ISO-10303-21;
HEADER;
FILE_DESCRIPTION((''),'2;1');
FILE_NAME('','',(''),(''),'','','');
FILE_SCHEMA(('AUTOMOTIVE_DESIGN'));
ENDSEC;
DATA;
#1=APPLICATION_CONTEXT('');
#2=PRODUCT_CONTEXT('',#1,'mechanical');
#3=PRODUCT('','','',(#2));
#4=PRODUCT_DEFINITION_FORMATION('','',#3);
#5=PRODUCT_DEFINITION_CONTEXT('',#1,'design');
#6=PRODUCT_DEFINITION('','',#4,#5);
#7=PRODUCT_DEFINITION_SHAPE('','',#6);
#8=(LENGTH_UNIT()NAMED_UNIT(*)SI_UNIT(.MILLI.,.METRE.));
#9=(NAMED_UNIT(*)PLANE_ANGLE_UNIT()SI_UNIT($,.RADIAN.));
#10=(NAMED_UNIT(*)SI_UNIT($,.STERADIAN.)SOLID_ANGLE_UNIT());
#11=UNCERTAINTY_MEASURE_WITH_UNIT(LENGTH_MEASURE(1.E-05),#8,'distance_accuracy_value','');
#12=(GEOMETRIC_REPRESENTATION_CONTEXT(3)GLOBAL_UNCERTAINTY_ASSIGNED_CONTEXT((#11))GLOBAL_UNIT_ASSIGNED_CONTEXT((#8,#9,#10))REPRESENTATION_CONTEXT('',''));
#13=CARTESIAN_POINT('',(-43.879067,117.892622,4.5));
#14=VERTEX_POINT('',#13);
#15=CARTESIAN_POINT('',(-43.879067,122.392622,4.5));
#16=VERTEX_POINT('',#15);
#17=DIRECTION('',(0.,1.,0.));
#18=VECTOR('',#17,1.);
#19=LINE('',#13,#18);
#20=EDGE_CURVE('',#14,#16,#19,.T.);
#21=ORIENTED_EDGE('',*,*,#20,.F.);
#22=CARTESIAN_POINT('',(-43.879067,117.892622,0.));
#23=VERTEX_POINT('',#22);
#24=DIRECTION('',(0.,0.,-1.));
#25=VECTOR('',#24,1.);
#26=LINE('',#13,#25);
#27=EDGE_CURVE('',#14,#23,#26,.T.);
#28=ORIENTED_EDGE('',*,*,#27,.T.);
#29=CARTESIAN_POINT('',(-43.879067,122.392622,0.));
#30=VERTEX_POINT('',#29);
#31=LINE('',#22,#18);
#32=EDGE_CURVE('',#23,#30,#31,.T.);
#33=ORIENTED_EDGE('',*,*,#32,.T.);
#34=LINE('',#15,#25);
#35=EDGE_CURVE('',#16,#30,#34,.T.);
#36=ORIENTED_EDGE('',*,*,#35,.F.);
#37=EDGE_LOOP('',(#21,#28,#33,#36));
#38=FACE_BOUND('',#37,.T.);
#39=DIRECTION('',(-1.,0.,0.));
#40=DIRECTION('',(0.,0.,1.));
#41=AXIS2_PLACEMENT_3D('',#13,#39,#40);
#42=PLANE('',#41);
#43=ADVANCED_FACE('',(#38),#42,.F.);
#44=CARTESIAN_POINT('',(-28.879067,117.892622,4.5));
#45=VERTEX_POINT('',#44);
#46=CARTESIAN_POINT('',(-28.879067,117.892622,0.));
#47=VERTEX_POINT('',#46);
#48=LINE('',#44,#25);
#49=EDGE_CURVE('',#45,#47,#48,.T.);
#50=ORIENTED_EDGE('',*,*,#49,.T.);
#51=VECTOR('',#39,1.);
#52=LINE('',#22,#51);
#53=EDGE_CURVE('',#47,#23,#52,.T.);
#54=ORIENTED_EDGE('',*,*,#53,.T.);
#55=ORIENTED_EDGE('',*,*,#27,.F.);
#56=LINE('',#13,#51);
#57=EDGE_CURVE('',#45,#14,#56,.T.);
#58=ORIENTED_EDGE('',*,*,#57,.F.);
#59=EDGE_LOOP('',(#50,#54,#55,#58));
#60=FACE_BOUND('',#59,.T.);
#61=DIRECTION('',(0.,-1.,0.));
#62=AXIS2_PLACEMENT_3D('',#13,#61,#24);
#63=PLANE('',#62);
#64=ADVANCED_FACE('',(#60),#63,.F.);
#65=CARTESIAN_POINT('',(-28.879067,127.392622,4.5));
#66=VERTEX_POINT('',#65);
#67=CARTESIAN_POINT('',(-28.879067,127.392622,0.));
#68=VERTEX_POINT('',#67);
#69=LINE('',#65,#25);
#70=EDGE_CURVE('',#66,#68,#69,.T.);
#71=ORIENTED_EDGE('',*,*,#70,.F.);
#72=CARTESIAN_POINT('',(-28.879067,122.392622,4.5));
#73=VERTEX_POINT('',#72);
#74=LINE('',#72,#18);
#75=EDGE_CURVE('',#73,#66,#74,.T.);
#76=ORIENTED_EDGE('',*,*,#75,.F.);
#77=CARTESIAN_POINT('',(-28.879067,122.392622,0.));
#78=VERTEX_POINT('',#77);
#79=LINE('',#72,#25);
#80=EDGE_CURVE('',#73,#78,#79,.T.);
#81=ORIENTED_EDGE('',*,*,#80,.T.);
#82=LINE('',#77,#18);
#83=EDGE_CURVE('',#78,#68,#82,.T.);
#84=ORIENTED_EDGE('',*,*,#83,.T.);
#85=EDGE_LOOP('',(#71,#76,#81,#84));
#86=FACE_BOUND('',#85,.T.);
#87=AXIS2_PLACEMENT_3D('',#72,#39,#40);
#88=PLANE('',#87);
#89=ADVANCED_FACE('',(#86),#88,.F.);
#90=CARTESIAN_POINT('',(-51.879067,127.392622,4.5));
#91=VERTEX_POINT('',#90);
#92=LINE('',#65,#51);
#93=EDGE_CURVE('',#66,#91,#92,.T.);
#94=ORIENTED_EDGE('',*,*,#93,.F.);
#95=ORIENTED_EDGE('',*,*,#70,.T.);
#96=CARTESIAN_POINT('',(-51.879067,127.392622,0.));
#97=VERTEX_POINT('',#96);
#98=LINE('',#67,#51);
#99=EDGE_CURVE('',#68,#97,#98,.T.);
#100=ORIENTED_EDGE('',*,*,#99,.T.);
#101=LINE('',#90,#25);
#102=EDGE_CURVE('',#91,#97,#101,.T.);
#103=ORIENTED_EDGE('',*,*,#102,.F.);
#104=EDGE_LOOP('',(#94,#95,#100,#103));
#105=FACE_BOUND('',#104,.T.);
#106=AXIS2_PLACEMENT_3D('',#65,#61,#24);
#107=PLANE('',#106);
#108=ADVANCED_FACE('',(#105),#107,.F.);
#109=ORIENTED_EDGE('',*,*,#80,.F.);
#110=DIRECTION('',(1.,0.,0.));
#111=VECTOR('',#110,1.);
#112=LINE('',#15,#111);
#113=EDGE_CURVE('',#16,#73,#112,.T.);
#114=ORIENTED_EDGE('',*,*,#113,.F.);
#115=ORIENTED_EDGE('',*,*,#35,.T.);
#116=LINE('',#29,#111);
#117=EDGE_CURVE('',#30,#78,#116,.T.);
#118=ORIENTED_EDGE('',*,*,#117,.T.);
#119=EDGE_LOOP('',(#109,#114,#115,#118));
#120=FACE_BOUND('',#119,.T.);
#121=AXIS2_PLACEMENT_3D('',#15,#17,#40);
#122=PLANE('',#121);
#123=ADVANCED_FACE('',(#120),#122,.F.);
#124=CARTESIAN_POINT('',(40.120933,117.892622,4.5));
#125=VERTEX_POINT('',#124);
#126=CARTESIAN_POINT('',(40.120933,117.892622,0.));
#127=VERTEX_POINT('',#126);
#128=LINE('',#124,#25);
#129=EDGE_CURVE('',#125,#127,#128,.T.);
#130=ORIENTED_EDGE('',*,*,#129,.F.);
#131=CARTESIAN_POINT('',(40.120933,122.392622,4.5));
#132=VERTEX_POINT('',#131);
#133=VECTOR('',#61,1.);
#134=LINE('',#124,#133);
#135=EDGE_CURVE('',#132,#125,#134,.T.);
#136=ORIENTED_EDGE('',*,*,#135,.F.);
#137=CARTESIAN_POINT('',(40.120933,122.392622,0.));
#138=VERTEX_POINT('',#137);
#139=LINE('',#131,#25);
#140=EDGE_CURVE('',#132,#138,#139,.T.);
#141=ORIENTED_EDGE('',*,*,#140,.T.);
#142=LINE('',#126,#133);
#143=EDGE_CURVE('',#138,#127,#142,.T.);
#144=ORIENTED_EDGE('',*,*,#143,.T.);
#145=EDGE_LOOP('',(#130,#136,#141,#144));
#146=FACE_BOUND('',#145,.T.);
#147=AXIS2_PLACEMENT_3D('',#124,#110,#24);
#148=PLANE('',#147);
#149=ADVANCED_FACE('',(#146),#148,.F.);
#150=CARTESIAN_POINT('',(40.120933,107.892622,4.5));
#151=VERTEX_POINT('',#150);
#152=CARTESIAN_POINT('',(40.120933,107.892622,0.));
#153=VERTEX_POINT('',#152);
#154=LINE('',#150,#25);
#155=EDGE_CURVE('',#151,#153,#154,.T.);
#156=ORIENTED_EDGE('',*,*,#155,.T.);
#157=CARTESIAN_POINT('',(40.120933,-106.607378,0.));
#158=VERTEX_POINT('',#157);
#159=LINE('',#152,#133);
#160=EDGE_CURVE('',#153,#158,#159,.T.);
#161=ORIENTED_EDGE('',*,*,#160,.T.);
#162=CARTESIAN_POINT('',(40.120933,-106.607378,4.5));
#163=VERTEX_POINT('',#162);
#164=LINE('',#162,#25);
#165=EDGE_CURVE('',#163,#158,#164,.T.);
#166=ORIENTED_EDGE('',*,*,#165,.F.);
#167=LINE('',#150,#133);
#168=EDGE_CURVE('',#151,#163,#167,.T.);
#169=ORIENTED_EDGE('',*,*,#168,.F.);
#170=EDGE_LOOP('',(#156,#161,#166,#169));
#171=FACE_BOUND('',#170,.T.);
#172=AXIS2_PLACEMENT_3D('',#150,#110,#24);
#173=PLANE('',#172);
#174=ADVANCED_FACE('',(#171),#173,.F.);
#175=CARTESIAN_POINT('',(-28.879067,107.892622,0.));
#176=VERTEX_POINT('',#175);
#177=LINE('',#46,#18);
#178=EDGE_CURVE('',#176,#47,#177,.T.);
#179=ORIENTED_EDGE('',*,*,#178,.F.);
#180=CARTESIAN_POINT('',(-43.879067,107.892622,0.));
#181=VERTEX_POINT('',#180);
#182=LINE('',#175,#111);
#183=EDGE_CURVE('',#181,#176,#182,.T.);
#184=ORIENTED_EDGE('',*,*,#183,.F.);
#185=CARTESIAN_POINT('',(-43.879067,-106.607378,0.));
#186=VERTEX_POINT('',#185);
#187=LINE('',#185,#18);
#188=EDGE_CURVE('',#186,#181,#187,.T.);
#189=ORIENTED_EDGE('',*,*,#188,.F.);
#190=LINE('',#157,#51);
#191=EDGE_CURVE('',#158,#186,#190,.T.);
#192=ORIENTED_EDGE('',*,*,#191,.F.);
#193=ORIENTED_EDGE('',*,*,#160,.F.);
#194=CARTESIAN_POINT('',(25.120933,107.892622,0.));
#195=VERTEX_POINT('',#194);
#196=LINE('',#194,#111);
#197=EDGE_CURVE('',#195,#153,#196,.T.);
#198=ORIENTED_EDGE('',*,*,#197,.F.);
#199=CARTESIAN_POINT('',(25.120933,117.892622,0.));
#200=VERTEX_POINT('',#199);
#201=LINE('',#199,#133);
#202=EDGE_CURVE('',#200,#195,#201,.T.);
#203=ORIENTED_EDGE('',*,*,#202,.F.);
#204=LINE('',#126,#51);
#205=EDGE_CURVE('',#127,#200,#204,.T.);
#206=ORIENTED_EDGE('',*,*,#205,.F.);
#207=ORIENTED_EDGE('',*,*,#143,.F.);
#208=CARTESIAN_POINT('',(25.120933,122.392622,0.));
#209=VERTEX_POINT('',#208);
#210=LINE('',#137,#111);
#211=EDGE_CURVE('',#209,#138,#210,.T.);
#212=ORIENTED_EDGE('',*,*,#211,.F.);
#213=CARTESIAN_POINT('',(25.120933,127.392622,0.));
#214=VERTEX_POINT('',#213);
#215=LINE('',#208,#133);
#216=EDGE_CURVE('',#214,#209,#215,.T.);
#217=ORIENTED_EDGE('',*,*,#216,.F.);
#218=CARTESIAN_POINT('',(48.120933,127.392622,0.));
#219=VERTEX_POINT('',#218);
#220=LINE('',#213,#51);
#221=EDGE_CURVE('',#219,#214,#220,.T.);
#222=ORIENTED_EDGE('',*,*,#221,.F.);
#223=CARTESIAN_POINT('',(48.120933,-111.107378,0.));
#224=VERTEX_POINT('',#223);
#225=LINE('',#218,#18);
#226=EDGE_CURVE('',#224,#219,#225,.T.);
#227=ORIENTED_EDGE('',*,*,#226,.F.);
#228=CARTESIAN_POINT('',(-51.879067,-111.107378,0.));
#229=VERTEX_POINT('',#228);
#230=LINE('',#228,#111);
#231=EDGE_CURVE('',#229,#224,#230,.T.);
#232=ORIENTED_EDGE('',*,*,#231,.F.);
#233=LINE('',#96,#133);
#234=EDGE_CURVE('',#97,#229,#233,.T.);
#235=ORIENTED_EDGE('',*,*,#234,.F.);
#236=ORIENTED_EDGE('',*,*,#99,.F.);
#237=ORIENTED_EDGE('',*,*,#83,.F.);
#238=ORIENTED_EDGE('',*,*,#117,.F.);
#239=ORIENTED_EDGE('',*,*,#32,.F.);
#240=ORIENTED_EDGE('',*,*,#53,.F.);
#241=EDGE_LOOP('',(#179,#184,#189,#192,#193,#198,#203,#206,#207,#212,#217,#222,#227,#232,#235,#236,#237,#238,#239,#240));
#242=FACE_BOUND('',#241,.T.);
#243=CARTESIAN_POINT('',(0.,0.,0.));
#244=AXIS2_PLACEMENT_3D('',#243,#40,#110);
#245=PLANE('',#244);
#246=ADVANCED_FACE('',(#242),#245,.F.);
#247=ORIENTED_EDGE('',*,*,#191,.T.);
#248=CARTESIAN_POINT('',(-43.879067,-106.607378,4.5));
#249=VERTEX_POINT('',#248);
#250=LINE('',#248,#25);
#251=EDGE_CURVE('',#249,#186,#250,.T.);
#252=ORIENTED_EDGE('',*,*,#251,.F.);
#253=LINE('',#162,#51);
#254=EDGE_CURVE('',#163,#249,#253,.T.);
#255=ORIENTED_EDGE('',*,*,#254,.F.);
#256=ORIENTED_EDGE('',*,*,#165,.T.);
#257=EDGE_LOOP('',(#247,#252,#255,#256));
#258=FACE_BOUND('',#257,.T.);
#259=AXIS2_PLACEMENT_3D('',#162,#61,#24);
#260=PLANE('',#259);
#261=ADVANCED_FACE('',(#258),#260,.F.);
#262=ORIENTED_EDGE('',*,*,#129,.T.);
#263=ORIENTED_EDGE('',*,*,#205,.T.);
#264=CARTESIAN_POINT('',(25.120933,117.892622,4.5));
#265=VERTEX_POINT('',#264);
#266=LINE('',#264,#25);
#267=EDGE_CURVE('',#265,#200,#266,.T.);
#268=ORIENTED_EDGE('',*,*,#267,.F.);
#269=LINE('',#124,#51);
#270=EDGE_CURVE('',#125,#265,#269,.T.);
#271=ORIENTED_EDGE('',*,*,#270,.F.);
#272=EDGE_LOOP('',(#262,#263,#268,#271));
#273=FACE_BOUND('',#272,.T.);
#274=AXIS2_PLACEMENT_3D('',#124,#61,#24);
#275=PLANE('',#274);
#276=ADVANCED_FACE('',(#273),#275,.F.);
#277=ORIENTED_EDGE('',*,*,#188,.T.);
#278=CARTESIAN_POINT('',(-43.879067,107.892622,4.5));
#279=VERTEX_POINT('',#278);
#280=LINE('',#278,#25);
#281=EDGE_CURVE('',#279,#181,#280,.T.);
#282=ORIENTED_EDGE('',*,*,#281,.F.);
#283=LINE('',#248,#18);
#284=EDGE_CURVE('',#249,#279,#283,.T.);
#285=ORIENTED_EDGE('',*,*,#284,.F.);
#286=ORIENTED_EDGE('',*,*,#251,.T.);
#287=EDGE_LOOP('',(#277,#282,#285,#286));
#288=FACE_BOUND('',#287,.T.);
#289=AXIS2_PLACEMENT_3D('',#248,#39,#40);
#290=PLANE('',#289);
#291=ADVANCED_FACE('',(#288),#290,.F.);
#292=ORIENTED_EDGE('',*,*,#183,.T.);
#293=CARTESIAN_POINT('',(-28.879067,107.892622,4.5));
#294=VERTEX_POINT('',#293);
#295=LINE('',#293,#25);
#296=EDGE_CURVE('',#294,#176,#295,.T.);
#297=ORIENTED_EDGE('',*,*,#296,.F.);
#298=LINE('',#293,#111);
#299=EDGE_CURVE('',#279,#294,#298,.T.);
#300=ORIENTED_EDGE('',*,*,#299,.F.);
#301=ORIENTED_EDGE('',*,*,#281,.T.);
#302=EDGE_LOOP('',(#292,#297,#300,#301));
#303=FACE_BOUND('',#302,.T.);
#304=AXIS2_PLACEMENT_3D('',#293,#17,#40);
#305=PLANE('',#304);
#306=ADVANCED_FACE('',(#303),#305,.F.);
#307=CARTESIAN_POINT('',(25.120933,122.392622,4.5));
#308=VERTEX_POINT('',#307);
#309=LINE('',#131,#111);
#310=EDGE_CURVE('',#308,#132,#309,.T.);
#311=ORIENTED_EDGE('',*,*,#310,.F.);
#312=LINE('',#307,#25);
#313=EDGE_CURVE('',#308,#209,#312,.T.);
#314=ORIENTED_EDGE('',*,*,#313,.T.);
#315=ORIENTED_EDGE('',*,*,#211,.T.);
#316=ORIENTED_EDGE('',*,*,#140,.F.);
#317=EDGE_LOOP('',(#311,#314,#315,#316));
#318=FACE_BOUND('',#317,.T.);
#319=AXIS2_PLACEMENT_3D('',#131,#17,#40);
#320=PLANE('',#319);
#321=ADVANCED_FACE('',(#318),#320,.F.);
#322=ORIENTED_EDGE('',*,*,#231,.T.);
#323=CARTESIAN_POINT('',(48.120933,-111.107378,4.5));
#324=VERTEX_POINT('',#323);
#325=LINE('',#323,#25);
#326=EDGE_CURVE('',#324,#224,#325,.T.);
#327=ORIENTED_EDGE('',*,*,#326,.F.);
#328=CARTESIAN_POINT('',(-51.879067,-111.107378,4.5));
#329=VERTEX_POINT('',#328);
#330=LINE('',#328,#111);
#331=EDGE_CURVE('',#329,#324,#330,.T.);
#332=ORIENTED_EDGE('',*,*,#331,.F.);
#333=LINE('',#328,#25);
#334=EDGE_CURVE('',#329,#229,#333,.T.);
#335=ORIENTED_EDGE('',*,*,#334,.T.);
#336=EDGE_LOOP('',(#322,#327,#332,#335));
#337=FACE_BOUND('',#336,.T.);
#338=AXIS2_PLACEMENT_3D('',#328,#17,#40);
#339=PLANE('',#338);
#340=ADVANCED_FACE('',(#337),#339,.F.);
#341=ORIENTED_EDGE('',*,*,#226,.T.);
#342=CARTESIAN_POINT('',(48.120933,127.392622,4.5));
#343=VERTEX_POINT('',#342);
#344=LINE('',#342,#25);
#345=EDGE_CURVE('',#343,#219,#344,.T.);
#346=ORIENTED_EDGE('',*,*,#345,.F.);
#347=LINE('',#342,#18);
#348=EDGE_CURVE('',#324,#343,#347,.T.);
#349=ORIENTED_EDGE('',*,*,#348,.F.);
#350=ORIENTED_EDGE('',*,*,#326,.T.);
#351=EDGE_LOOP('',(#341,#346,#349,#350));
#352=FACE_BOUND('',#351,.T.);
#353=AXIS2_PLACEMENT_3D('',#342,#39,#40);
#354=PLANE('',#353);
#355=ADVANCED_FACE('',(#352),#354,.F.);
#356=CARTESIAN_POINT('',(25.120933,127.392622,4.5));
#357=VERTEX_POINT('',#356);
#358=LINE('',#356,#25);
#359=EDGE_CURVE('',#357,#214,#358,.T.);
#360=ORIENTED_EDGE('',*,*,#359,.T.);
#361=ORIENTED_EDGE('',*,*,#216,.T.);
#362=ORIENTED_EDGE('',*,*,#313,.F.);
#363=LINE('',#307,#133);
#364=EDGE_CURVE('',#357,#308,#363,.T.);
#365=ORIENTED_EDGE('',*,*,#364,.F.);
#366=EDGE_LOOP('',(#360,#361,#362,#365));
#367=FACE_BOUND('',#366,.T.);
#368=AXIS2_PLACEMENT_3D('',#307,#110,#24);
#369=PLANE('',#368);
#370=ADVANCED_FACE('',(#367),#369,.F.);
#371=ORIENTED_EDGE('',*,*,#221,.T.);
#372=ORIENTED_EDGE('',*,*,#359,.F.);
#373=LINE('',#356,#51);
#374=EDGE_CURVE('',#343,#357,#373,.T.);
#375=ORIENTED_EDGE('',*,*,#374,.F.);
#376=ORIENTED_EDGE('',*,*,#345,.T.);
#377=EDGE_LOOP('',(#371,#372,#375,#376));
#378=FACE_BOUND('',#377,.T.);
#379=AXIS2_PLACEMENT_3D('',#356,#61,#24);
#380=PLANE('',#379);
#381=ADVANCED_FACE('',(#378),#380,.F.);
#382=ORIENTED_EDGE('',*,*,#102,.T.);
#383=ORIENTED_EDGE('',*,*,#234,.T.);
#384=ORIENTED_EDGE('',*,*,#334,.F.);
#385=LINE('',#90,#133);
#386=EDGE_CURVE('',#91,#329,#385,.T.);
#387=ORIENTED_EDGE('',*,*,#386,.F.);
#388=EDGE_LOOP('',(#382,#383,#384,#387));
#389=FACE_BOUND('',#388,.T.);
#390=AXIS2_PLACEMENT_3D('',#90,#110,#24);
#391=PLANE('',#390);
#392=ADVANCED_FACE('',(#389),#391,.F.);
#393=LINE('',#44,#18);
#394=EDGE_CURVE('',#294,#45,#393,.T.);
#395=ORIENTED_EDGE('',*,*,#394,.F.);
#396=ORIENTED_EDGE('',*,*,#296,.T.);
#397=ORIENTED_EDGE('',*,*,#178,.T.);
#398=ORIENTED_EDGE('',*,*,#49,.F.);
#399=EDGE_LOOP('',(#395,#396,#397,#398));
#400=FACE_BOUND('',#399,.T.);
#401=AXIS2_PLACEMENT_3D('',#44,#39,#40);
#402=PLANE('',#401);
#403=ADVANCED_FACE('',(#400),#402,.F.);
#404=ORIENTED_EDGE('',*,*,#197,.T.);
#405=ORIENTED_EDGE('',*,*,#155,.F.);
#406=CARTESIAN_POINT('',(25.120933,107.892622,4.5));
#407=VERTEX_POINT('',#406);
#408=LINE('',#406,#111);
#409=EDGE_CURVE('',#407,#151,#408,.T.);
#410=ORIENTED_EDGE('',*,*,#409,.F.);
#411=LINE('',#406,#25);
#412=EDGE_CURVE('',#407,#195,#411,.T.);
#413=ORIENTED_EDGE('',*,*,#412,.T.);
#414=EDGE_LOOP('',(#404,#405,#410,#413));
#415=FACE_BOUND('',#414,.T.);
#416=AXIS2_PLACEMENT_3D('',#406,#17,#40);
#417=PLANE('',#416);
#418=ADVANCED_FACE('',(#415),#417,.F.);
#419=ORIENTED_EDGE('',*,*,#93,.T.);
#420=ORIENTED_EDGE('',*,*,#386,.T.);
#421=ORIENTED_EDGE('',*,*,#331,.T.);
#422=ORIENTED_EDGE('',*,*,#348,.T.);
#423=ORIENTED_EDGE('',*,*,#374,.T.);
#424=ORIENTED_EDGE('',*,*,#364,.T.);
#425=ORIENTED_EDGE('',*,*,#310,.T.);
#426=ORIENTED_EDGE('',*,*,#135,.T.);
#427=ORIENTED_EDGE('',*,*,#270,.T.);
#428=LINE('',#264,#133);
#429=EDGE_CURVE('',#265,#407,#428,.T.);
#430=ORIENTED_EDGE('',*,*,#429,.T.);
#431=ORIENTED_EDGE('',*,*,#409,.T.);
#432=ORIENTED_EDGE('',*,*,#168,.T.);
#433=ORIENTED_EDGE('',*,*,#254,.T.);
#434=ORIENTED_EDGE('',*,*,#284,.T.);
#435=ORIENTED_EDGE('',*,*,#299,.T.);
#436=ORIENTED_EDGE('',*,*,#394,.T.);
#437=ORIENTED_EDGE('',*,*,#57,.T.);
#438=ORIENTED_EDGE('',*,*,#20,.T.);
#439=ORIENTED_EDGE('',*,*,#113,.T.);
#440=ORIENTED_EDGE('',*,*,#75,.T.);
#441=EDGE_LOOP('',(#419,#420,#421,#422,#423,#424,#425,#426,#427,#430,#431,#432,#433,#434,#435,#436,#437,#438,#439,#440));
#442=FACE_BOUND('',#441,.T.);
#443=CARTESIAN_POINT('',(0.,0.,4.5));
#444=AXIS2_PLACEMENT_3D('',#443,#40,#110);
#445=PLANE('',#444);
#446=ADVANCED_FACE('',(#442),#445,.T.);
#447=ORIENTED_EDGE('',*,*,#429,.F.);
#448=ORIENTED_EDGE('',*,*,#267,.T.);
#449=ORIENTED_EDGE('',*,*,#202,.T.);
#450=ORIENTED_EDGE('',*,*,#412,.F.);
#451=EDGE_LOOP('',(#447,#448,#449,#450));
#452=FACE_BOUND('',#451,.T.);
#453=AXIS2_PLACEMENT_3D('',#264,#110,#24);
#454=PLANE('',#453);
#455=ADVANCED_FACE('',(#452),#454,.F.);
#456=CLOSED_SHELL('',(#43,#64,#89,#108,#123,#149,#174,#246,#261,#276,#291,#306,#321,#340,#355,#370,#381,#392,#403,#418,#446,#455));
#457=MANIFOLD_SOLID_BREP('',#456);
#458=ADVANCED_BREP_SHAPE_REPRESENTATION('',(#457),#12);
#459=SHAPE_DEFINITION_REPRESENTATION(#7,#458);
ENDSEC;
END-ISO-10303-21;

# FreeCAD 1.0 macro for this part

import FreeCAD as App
import Part
import Sketcher

V = App.Vector
Q = App.Units.Quantity


def add_polygon(sketch, points):
    """Adds a closed chain of lines whose ends are joined by coincident constraints."""
    first, n = sketch.GeometryCount, len(points)
    for a, b in zip(points, points[1:] + points[:1]):
        sketch.addGeometry(Part.LineSegment(App.Vector(*a, 0), App.Vector(*b, 0)), False)
    for i in range(n):
        sketch.addConstraint(Sketcher.Constraint("Coincident", first + i, 2, first + (i + 1) % n, 1))

doc = App.newDocument("Part")
body = doc.addObject("PartDesign::Body", "Body")

# Sketch on XY plane
sketch1 = body.newObject("Sketcher::SketchObject", "Sketch")
sketch1.AttachmentSupport = (doc.getObject("XY_Plane"), [""])
sketch1.MapMode = "FlatFace"
add_polygon(sketch1, [(40.1, 122.4), (40.1, 117.9), (25.1, 117.9), (25.1, 107.9), (40.1, 107.9), (40.1, -106.6), (-43.9, -106.6), (-43.9, 107.9), (-28.9, 107.9), (-28.9, 117.9), (-43.9, 117.9), (-43.9, 122.4), (-28.9, 122.4), (-28.9, 127.4), (-51.9, 127.4), (-51.9, -111.1), (48.1, -111.1), (48.1, 127.4), (25.1, 127.4), (25.1, 122.4)])  # lines 0-19
sketch1.addConstraint(Sketcher.Constraint("Vertical", 0))
sketch1.addConstraint(Sketcher.Constraint("Horizontal", 1))
sketch1.addConstraint(Sketcher.Constraint("Vertical", 2))
sketch1.addConstraint(Sketcher.Constraint("Horizontal", 3))
sketch1.addConstraint(Sketcher.Constraint("Vertical", 4))
sketch1.addConstraint(Sketcher.Constraint("Horizontal", 5))
sketch1.addConstraint(Sketcher.Constraint("Vertical", 6))
sketch1.addConstraint(Sketcher.Constraint("Horizontal", 7))
sketch1.addConstraint(Sketcher.Constraint("Vertical", 8))
sketch1.addConstraint(Sketcher.Constraint("Horizontal", 9))
sketch1.addConstraint(Sketcher.Constraint("Vertical", 10))
sketch1.addConstraint(Sketcher.Constraint("Horizontal", 11))
sketch1.addConstraint(Sketcher.Constraint("Vertical", 12))
sketch1.addConstraint(Sketcher.Constraint("Horizontal", 13))
sketch1.addConstraint(Sketcher.Constraint("Vertical", 14))
sketch1.addConstraint(Sketcher.Constraint("Horizontal", 15))
sketch1.addConstraint(Sketcher.Constraint("Vertical", 16))
sketch1.addConstraint(Sketcher.Constraint("Horizontal", 17))
sketch1.addConstraint(Sketcher.Constraint("Vertical", 18))
sketch1.addConstraint(Sketcher.Constraint("Horizontal", 19))
sketch1.addConstraint(Sketcher.Constraint("Horizontal", 3, 2, 6, 2))
sketch1.addConstraint(Sketcher.Constraint("Horizontal", 1, 2, 8, 2))
sketch1.addConstraint(Sketcher.Constraint("Horizontal", 13, 2, 16, 2))
sketch1.addConstraint(Sketcher.Constraint("Horizontal", 11, 2, 18, 2))
sketch1.addConstraint(Sketcher.Constraint("Vertical", 0, 2, 3, 2))
sketch1.addConstraint(Sketcher.Constraint("Vertical", 6, 2, 9, 2))
sketch1.addConstraint(Sketcher.Constraint("Vertical", 8, 2, 11, 2))
sketch1.addConstraint(Sketcher.Constraint("Vertical", 2, 2, 17, 2))
sketch1.addConstraint(Sketcher.Constraint("Equal", 3, 7))
sketch1.addConstraint(Sketcher.Constraint("Equal", 13, 17))
sketch1.addConstraint(Sketcher.Constraint("DistanceX", 1, 2, 1, 1, Q("15 mm")))
sketch1.addConstraint(Sketcher.Constraint("DistanceX", 5, 2, 5, 1, Q("84 mm")))
sketch1.addConstraint(Sketcher.Constraint("DistanceX", 13, 2, 13, 1, Q("23 mm")))
sketch1.addConstraint(Sketcher.Constraint("DistanceY", 2, 2, 2, 1, Q("10 mm")))
sketch1.addConstraint(Sketcher.Constraint("DistanceY", 12, 1, 12, 2, Q("5 mm")))
sketch1.addConstraint(Sketcher.Constraint("DistanceY", 0, 2, 0, 1, Q("4.5 mm")))
sketch1.addConstraint(Sketcher.Constraint("DistanceY", 4, 2, 4, 1, Q("214.5 mm")))
sketch1.addConstraint(Sketcher.Constraint("DistanceY", 14, 2, 14, 1, Q("238.5 mm")))
sketch1.addConstraint(Sketcher.Constraint("DistanceX", -1, 1, 0, 2, Q("40.120933 mm")))
sketch1.addConstraint(Sketcher.Constraint("DistanceY", -1, 1, 0, 2, Q("117.892622 mm")))
pad1 = body.newObject("PartDesign::Pad", "Pad")
pad1.Profile = sketch1
pad1.Length = 4.5

doc.recompute()
